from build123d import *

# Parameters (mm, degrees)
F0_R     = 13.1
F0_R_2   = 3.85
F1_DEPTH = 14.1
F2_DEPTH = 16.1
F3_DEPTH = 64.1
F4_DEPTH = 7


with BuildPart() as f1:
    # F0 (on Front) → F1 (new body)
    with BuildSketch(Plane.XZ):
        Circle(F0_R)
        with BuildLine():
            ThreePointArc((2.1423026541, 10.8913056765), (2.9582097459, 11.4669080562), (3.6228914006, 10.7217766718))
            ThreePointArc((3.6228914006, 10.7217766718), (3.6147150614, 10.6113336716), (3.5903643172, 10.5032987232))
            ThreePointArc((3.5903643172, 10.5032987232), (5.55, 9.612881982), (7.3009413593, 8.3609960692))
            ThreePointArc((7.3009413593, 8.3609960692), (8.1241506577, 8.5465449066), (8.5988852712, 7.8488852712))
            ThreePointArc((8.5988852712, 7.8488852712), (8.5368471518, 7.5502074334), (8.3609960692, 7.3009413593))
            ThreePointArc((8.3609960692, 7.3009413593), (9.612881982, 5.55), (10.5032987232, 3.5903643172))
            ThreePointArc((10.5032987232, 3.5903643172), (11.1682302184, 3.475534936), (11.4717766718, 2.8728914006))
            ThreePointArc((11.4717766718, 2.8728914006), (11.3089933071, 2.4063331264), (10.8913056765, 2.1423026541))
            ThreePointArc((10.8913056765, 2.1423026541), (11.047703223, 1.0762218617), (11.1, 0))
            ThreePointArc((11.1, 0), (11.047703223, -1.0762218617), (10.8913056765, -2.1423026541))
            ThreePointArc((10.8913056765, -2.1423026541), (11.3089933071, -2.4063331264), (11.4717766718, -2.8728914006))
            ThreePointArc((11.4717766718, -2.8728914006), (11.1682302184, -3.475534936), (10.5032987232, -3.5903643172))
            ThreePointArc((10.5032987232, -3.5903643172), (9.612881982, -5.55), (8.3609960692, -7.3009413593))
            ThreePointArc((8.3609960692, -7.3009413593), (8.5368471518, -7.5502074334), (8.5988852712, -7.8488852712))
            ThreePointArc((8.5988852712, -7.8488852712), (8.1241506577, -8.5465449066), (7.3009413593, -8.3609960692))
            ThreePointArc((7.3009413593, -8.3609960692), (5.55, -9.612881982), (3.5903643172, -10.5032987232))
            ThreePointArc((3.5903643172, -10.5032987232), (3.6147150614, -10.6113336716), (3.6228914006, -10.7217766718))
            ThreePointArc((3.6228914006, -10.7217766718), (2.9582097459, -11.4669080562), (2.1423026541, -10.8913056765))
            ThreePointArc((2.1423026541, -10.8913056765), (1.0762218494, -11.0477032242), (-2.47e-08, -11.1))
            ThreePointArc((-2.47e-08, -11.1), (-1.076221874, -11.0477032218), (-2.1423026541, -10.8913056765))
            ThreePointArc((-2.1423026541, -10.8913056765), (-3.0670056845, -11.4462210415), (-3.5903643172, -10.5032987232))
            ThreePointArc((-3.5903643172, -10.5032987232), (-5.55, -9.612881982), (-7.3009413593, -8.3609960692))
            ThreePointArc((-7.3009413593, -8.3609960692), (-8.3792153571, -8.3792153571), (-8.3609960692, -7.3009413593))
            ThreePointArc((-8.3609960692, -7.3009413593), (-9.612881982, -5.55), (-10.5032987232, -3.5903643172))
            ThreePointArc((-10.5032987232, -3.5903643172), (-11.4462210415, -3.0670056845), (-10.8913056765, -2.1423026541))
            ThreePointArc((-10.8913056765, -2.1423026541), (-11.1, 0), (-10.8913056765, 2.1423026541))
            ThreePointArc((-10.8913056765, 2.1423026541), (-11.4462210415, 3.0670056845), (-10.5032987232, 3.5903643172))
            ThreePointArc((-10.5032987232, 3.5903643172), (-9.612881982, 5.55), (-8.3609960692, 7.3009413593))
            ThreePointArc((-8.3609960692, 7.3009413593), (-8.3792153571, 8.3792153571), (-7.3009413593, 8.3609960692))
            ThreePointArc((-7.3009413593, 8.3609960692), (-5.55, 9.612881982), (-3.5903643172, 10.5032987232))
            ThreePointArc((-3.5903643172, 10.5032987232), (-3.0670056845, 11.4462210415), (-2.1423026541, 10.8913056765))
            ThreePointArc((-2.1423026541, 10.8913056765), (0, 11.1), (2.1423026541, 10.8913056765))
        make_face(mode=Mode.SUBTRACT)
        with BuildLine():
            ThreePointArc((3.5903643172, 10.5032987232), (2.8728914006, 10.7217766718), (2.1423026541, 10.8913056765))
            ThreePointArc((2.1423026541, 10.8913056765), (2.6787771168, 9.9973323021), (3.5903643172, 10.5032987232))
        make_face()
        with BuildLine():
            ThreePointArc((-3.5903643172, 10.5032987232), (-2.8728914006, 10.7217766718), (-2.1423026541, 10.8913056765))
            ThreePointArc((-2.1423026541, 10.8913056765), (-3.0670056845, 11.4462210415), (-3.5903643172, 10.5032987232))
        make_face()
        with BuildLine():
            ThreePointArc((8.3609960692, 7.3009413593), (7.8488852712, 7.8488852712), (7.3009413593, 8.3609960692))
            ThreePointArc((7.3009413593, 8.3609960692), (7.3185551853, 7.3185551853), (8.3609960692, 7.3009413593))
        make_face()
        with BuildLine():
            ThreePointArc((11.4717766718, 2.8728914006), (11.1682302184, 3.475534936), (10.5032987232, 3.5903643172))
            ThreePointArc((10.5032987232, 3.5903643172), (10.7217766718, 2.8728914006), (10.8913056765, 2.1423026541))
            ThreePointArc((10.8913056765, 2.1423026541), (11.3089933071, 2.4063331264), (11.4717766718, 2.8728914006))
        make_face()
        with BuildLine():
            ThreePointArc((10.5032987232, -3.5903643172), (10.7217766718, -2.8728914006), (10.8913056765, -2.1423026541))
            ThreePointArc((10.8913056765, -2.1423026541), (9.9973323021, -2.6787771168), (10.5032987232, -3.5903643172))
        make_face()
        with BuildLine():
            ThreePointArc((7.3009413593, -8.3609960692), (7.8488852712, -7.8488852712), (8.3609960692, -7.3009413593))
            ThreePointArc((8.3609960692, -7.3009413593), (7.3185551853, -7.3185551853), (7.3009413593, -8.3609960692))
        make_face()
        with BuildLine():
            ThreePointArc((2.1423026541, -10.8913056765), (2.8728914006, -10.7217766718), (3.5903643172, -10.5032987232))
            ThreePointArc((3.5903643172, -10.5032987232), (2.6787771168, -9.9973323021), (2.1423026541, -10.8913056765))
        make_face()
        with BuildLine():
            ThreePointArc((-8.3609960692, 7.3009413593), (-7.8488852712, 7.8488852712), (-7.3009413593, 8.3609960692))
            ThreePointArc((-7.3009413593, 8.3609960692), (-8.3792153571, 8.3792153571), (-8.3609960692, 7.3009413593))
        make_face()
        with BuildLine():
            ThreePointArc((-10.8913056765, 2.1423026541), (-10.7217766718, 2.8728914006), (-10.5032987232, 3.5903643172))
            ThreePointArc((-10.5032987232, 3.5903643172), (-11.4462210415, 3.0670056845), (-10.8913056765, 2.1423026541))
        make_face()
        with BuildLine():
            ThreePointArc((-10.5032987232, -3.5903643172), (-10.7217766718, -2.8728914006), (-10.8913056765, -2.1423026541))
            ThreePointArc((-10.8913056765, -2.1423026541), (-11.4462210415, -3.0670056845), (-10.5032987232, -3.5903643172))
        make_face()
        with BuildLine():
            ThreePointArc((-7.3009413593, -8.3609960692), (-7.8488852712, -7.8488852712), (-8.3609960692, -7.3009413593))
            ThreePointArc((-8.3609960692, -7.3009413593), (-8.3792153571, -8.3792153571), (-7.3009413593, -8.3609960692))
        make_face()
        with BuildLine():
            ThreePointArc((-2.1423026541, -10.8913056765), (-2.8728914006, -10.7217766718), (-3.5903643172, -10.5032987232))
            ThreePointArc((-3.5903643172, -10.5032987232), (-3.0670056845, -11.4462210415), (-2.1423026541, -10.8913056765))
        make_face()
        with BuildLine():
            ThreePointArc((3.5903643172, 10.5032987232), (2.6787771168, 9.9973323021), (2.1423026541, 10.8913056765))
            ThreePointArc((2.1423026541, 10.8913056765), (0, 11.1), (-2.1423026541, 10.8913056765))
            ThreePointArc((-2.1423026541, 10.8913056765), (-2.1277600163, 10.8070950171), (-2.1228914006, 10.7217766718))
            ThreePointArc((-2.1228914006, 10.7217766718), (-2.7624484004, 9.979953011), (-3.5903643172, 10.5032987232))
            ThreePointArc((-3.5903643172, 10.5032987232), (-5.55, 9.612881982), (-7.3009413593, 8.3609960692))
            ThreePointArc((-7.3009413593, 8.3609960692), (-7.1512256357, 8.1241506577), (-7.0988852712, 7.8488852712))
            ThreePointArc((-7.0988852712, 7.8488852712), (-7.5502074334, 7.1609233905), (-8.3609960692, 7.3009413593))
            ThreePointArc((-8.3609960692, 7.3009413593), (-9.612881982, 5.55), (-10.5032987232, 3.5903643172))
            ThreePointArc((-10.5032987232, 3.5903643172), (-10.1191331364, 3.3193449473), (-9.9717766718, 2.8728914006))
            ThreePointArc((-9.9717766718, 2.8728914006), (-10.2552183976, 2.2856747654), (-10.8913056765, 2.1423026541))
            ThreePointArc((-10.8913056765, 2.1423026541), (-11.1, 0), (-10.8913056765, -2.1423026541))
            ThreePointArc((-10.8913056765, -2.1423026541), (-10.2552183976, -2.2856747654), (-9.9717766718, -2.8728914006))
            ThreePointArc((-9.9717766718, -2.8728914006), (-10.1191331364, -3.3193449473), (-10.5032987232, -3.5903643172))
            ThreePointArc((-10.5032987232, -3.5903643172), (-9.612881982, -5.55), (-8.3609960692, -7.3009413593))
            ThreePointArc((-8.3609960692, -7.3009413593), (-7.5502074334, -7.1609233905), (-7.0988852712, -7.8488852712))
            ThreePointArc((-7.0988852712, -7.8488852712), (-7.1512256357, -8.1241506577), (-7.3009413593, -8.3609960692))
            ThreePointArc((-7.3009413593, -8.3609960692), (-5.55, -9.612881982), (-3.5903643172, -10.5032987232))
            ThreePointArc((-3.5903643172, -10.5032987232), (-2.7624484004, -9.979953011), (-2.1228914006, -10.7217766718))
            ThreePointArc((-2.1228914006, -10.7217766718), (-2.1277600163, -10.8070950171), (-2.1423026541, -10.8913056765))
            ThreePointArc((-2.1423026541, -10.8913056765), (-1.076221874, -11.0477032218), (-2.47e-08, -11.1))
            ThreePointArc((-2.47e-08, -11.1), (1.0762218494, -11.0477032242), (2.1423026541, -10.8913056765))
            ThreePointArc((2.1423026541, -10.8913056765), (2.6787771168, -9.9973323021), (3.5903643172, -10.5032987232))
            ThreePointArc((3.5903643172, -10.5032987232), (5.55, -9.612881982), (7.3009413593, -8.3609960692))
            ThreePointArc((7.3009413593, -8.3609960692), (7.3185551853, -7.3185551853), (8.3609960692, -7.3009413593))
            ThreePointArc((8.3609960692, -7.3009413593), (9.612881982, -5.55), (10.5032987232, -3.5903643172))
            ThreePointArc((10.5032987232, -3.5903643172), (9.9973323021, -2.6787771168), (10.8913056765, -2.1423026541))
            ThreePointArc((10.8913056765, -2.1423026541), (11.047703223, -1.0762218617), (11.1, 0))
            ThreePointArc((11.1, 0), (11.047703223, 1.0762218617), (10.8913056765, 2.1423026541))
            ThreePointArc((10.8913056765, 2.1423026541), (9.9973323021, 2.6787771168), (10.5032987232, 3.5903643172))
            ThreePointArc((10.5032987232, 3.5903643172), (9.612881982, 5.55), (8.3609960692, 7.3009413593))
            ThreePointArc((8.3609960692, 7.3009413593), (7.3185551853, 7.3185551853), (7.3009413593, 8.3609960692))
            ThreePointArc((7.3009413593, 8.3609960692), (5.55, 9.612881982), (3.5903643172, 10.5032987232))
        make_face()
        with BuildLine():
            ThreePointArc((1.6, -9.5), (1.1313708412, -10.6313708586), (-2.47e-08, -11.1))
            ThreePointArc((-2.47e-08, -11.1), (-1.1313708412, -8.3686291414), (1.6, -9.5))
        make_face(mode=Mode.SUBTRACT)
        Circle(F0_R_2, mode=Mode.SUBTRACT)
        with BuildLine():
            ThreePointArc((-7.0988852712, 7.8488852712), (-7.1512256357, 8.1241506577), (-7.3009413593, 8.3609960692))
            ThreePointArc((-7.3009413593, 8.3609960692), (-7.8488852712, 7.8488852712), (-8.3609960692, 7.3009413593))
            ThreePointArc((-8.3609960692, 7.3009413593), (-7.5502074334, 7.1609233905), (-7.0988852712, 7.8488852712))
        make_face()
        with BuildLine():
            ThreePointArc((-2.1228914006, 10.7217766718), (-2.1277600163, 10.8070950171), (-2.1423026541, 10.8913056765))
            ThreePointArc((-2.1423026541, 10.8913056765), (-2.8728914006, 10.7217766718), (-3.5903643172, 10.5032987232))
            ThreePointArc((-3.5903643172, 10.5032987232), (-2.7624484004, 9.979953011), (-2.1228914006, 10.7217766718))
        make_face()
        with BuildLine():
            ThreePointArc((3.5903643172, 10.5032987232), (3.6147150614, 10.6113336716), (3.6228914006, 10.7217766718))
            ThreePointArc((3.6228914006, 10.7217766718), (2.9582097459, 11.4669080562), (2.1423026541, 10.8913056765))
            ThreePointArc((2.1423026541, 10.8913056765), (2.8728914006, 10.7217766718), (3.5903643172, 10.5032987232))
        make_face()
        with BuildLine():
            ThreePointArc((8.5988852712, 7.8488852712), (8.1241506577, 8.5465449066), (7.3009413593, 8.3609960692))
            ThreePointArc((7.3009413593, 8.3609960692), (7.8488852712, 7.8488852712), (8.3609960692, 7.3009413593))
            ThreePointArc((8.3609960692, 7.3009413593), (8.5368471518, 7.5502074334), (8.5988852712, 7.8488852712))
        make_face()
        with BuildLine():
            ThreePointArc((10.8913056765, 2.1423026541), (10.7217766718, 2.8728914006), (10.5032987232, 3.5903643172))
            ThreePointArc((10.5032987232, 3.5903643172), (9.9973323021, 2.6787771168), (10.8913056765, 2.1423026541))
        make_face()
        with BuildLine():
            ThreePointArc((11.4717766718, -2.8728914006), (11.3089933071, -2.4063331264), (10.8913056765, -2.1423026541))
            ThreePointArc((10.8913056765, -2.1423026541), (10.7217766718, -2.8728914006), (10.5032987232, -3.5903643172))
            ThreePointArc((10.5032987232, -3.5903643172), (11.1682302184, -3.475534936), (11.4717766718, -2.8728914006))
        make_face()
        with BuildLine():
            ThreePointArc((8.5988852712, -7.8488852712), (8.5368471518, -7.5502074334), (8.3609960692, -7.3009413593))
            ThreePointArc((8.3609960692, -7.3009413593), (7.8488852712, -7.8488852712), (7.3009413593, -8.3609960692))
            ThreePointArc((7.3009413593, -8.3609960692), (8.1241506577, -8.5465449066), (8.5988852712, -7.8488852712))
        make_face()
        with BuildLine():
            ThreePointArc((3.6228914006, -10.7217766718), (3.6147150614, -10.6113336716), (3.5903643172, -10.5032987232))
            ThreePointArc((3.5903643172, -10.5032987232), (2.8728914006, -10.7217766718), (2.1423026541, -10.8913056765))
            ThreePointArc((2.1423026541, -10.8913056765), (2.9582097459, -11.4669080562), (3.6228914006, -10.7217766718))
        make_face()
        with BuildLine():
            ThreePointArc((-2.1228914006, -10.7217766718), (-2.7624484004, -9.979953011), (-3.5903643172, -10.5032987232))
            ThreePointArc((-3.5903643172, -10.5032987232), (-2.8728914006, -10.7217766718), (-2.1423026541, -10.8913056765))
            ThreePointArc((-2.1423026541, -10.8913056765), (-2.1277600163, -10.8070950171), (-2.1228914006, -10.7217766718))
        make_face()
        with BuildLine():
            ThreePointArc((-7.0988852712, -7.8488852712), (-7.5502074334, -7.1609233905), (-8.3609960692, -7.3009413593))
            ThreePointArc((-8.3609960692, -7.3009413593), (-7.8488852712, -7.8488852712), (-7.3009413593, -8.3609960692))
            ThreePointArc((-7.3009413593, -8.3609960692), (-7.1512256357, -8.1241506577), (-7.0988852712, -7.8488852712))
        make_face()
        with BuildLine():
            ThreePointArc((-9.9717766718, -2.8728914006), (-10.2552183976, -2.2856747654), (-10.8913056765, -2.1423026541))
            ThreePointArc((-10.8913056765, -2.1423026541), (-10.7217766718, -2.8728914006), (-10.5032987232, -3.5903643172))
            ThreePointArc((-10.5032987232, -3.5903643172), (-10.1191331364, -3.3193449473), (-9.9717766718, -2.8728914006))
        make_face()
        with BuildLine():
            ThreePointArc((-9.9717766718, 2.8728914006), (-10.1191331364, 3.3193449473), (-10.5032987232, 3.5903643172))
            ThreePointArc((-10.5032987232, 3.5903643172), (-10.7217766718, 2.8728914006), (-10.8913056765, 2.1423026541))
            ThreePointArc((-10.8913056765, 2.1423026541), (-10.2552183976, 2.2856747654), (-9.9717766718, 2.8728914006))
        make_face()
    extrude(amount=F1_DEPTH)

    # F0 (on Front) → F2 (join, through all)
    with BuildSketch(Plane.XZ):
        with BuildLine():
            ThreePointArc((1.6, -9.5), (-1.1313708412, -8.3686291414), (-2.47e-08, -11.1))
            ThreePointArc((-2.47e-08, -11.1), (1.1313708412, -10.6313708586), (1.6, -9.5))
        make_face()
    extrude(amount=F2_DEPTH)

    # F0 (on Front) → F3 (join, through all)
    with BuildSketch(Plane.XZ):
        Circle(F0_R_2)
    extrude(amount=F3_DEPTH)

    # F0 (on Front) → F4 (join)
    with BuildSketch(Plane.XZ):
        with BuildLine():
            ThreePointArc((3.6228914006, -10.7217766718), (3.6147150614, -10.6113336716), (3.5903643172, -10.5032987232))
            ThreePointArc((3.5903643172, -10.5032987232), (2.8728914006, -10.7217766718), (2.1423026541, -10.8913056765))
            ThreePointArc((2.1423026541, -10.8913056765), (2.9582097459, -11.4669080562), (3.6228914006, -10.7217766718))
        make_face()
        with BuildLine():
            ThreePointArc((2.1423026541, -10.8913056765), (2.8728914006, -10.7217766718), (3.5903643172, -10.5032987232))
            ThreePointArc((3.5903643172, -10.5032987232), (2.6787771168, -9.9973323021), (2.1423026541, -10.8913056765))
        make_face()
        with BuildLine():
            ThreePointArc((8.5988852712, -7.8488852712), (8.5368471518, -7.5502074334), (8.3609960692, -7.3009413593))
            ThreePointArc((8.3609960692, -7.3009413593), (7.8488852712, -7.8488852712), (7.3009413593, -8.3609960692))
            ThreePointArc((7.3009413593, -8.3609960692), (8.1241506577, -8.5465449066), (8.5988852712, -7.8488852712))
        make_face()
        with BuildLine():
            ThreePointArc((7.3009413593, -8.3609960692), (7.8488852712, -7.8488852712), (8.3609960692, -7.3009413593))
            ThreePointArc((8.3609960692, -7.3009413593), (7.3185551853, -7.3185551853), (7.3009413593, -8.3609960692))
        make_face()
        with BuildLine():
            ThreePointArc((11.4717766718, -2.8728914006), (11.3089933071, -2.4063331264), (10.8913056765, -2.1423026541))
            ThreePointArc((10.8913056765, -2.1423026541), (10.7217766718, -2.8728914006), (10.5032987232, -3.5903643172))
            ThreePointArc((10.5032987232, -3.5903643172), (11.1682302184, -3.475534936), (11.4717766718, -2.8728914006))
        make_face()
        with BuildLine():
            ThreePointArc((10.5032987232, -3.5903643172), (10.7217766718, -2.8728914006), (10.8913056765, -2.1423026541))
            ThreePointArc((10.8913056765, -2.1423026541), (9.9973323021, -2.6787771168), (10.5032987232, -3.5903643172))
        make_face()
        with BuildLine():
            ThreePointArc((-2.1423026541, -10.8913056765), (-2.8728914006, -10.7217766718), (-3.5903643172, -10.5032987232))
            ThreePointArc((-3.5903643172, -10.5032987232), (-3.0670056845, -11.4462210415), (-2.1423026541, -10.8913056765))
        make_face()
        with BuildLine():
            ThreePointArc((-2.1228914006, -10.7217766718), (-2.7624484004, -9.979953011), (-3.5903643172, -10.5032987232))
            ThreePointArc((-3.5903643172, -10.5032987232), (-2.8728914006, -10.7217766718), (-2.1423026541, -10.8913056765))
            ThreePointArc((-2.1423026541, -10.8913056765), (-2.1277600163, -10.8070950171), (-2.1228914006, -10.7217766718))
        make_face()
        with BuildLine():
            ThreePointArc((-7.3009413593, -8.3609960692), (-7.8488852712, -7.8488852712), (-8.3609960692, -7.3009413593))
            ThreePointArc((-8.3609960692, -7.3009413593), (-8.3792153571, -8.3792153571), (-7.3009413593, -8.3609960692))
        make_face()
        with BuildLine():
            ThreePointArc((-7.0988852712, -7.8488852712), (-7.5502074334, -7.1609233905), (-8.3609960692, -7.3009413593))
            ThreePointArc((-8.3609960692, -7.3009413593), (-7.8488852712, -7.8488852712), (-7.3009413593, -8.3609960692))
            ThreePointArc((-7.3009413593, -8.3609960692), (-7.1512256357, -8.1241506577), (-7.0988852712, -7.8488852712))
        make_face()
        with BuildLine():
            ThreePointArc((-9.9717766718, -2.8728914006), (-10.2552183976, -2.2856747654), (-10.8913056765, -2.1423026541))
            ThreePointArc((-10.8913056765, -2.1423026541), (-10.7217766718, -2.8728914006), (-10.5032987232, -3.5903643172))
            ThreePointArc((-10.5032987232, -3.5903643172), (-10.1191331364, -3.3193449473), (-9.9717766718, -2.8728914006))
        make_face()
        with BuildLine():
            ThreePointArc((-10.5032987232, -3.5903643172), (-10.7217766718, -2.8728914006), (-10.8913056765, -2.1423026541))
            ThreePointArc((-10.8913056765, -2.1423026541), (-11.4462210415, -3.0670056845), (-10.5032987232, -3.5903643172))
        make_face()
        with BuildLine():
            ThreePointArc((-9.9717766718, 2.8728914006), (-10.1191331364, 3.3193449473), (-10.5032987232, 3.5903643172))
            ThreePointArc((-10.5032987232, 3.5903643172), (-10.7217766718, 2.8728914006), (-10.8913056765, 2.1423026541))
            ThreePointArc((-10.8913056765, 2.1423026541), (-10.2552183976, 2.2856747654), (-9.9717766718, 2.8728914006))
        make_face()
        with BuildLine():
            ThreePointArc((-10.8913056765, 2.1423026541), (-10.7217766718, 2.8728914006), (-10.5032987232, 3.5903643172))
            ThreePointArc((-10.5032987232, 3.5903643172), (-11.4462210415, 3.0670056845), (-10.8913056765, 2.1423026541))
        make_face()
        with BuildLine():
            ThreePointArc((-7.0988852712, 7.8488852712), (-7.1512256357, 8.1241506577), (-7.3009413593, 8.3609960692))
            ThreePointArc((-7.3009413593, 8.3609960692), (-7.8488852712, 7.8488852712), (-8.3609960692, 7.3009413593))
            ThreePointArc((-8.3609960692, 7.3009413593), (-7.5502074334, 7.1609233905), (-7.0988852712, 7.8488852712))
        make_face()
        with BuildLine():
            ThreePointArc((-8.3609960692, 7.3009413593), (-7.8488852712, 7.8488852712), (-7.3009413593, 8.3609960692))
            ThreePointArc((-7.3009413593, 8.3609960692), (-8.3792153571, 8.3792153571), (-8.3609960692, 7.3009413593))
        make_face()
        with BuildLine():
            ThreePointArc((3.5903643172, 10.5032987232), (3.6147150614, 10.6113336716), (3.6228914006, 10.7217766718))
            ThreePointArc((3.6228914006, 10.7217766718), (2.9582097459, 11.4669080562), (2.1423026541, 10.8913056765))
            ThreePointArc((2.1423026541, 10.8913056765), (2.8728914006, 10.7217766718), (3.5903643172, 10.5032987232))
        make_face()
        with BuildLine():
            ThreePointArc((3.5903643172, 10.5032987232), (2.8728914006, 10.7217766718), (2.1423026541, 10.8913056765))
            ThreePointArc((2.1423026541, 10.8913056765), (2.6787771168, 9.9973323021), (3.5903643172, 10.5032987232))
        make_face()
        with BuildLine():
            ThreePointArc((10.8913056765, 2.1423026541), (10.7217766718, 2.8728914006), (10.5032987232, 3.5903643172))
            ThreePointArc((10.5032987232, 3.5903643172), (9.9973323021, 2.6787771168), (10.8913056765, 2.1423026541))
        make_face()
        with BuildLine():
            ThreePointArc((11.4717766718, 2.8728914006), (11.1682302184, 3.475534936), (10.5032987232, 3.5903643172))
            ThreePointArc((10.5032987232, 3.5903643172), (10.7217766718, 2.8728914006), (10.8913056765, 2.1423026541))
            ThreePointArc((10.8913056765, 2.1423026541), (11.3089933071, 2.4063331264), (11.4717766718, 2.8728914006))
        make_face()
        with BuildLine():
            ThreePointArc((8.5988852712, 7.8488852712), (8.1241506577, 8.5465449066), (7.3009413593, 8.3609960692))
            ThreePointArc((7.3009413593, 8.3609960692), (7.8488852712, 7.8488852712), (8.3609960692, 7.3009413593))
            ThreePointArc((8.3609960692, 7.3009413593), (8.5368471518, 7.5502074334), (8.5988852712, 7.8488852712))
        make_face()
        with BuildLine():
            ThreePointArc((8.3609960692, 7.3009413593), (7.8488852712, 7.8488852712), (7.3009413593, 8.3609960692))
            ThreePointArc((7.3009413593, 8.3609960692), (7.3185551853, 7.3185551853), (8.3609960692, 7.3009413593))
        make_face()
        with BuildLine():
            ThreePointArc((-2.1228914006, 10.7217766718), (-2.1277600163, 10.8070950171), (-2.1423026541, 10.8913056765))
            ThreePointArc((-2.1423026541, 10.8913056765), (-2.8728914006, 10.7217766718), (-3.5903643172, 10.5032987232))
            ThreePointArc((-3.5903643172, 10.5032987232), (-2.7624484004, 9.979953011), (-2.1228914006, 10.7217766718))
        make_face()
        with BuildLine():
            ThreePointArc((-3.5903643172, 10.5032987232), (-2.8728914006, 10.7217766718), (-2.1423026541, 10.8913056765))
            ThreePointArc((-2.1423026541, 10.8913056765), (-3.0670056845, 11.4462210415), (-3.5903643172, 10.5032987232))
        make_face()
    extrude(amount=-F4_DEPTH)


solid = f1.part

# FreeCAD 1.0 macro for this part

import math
import FreeCAD as App
import Part
import Sketcher

V = App.Vector

doc = App.newDocument("Part")
body = doc.addObject("PartDesign::Body", "Body")

# Sketch on XZ plane
sketch1 = doc.addObject("Sketcher::SketchObject", "Sketch")
body.addObject(sketch1)
sketch1.AttachmentSupport = (doc.XZ_Plane, [""])
sketch1.MapMode = "FlatFace"
sketch1.addGeometry(Part.Circle(V(0, 0, 0), V(0, 0, 1), 13.1), False)
sketch1.addGeometry(Part.ArcOfCircle(Part.Circle(V(0, -9.5, 0), V(0, 0, 1), 1.6), math.radians(0), math.radians(270)), False)
sketch1.addGeometry(Part.ArcOfCircle(Part.Circle(V(0, -9.5, 0), V(0, 0, 1), 1.6), math.radians(-90), math.radians(0)), False)
sketch1.addGeometry(Part.Circle(V(0, 0, 0), V(0, 0, 1), 3.9), False)
sketch1.addConstraint(Sketcher.Constraint("Tangent", 1, 1, 2, 2))
sketch1.addConstraint(Sketcher.Constraint("Coincident", 2, 1, 1, 2))
sketch1.addConstraint(Sketcher.Constraint("Coincident", 0, 3, -1, 1))
sketch1.addConstraint(Sketcher.Constraint("Coincident", 3, 3, -1, 1))
sketch1.addConstraint(Sketcher.Constraint("PointOnObject", 1, 3, -2))
sketch1.addConstraint(Sketcher.Constraint("PointOnObject", 2, 1, -2))
sketch1.addConstraint(Sketcher.Constraint("Horizontal", 2, 3, 1, 1))
sketch1.addConstraint(Sketcher.Constraint("Diameter", 0, 26.2))
sketch1.addConstraint(Sketcher.Constraint("Diameter", 3, 7.7))
sketch1.addConstraint(Sketcher.Constraint("Radius", 1, 1.6))
sketch1.addConstraint(Sketcher.Constraint("DistanceY", 1, 3, -1, 1, 9.5))
pad1 = doc.addObject("PartDesign::Pad", "Pad")
body.addObject(pad1)
pad1.Profile = sketch1
pad1.Length = 14.1

# Sketch on XZ plane
sketch2 = doc.addObject("Sketcher::SketchObject", "Sketch001")
body.addObject(sketch2)
sketch2.AttachmentSupport = (doc.XZ_Plane, [""])
sketch2.MapMode = "FlatFace"
sketch2.addGeometry(Part.ArcOfCircle(Part.Circle(V(0, -9.5, 0), V(0, 0, 1), 1.6), math.radians(0), math.radians(270)), False)
sketch2.addGeometry(Part.ArcOfCircle(Part.Circle(V(0, -9.5, 0), V(0, 0, 1), 1.6), math.radians(-90), math.radians(0)), False)
sketch2.addConstraint(Sketcher.Constraint("Tangent", 0, 1, 1, 2))
sketch2.addConstraint(Sketcher.Constraint("Coincident", 1, 1, 0, 2))
sketch2.addConstraint(Sketcher.Constraint("PointOnObject", 0, 3, -2))
sketch2.addConstraint(Sketcher.Constraint("PointOnObject", 1, 1, -2))
sketch2.addConstraint(Sketcher.Constraint("Horizontal", 1, 3, 0, 1))
sketch2.addConstraint(Sketcher.Constraint("Radius", 0, 1.6))
sketch2.addConstraint(Sketcher.Constraint("DistanceY", 0, 3, -1, 1, 9.5))
pad2 = doc.addObject("PartDesign::Pad", "Pad001")
body.addObject(pad2)
pad2.Profile = sketch2
pad2.Length = 16.1

# Sketch on XZ plane
sketch3 = doc.addObject("Sketcher::SketchObject", "Sketch002")
body.addObject(sketch3)
sketch3.AttachmentSupport = (doc.XZ_Plane, [""])
sketch3.MapMode = "FlatFace"
sketch3.addGeometry(Part.Circle(V(0, 0, 0), V(0, 0, 1), 3.9), False)
sketch3.addConstraint(Sketcher.Constraint("Coincident", 0, 3, -1, 1))
sketch3.addConstraint(Sketcher.Constraint("Diameter", 0, 7.7))
pad3 = doc.addObject("PartDesign::Pad", "Pad002")
body.addObject(pad3)
pad3.Profile = sketch3
pad3.Length = 64.1

# Sketch on XZ plane
sketch4 = doc.addObject("Sketcher::SketchObject", "Sketch003")
body.addObject(sketch4)
sketch4.AttachmentSupport = (doc.XZ_Plane, [""])
sketch4.MapMode = "FlatFace"
sketch4.addGeometry(Part.ArcOfCircle(Part.Circle(V(2.87, -10.72, 0), V(0, 0, 1), 0.75), math.radians(0), math.radians(16.94)), False)
sketch4.addGeometry(Part.ArcOfCircle(Part.Circle(V(2.87, -10.72, 0), V(0, 0, 1), 0.75), math.radians(17), math.radians(193)), False)
sketch4.addGeometry(Part.ArcOfCircle(Part.Circle(V(2.87, -10.72, 0), V(0, 0, 1), 0.75), math.radians(-167), math.radians(0)), False)
sketch4.addGeometry(Part.ArcOfCircle(Part.Circle(V(7.85, -7.85, 0), V(0, 0, 1), 0.75), math.radians(0), math.radians(47)), False)
sketch4.addGeometry(Part.ArcOfCircle(Part.Circle(V(7.85, -7.85, 0), V(0, 0, 1), 0.75), math.radians(47), math.radians(223)), False)
sketch4.addGeometry(Part.ArcOfCircle(Part.Circle(V(7.85, -7.85, 0), V(0, 0, 1), 0.75), math.radians(-137), math.radians(0)), False)
sketch4.addGeometry(Part.ArcOfCircle(Part.Circle(V(10.72, -2.87, 0), V(0, 0, 1), 0.75), math.radians(0), math.radians(77)), False)
sketch4.addGeometry(Part.ArcOfCircle(Part.Circle(V(10.72, -2.87, 0), V(0, 0, 1), 0.75), math.radians(77), math.radians(253)), False)
sketch4.addGeometry(Part.ArcOfCircle(Part.Circle(V(10.72, -2.87, 0), V(0, 0, 1), 0.75), math.radians(-107), math.radians(0)), False)
sketch4.addGeometry(Part.ArcOfCircle(Part.Circle(V(-2.87, -10.72, 0), V(0, 0, 1), 0.75), math.radians(163), math.radians(347)), False)
sketch4.addGeometry(Part.ArcOfCircle(Part.Circle(V(-2.87, -10.72, 0), V(0, 0, 1), 0.75), math.radians(-13.06), math.radians(0)), False)
sketch4.addGeometry(Part.ArcOfCircle(Part.Circle(V(-2.87, -10.72, 0), V(0, 0, 1), 0.75), math.radians(0), math.radians(163)), False)
sketch4.addGeometry(Part.ArcOfCircle(Part.Circle(V(-7.85, -7.85, 0), V(0, 0, 1), 0.75), math.radians(133), math.radians(317)), False)
sketch4.addGeometry(Part.ArcOfCircle(Part.Circle(V(-7.85, -7.85, 0), V(0, 0, 1), 0.75), math.radians(-43), math.radians(0)), False)
sketch4.addGeometry(Part.ArcOfCircle(Part.Circle(V(-7.85, -7.85, 0), V(0, 0, 1), 0.75), math.radians(0), math.radians(133)), False)
sketch4.addGeometry(Part.ArcOfCircle(Part.Circle(V(-10.72, -2.87, 0), V(0, 0, 1), 0.75), math.radians(0), math.radians(103)), False)
sketch4.addGeometry(Part.ArcOfCircle(Part.Circle(V(-10.72, -2.87, 0), V(0, 0, 1), 0.75), math.radians(103), math.radians(287)), False)
sketch4.addGeometry(Part.ArcOfCircle(Part.Circle(V(-10.72, -2.87, 0), V(0, 0, 1), 0.75), math.radians(-73), math.radians(0)), False)
sketch4.addGeometry(Part.ArcOfCircle(Part.Circle(V(-10.72, 2.87, 0), V(0, 0, 1), 0.75), math.radians(0), math.radians(73)), False)
sketch4.addGeometry(Part.ArcOfCircle(Part.Circle(V(-10.72, 2.87, 0), V(0, 0, 1), 0.75), math.radians(73), math.radians(257)), False)
sketch4.addGeometry(Part.ArcOfCircle(Part.Circle(V(-10.72, 2.87, 0), V(0, 0, 1), 0.75), math.radians(-103), math.radians(0)), False)
sketch4.addGeometry(Part.ArcOfCircle(Part.Circle(V(-7.85, 7.85, 0), V(0, 0, 1), 0.75), math.radians(0), math.radians(43)), False)
sketch4.addGeometry(Part.ArcOfCircle(Part.Circle(V(-7.85, 7.85, 0), V(0, 0, 1), 0.75), math.radians(43), math.radians(227)), False)
sketch4.addGeometry(Part.ArcOfCircle(Part.Circle(V(-7.85, 7.85, 0), V(0, 0, 1), 0.75), math.radians(-133), math.radians(0)), False)
sketch4.addGeometry(Part.ArcOfCircle(Part.Circle(V(2.87, 10.72, 0), V(0, 0, 1), 0.75), math.radians(-16.94), math.radians(0)), False)
sketch4.addGeometry(Part.ArcOfCircle(Part.Circle(V(2.87, 10.72, 0), V(0, 0, 1), 0.75), math.radians(0), math.radians(167)), False)
sketch4.addGeometry(Part.ArcOfCircle(Part.Circle(V(2.87, 10.72, 0), V(0, 0, 1), 0.75), math.radians(167), math.radians(343)), False)
sketch4.addGeometry(Part.ArcOfCircle(Part.Circle(V(10.72, 2.87, 0), V(0, 0, 1), 0.75), math.radians(107), math.radians(283)), False)
sketch4.addGeometry(Part.ArcOfCircle(Part.Circle(V(10.72, 2.87, 0), V(0, 0, 1), 0.75), math.radians(-77), math.radians(0)), False)
sketch4.addGeometry(Part.ArcOfCircle(Part.Circle(V(10.72, 2.87, 0), V(0, 0, 1), 0.75), math.radians(0), math.radians(107)), False)
sketch4.addGeometry(Part.ArcOfCircle(Part.Circle(V(7.85, 7.85, 0), V(0, 0, 1), 0.75), math.radians(0), math.radians(137)), False)
sketch4.addGeometry(Part.ArcOfCircle(Part.Circle(V(7.85, 7.85, 0), V(0, 0, 1), 0.75), math.radians(137), math.radians(313)), False)
sketch4.addGeometry(Part.ArcOfCircle(Part.Circle(V(7.85, 7.85, 0), V(0, 0, 1), 0.75), math.radians(-47), math.radians(0)), False)
sketch4.addGeometry(Part.ArcOfCircle(Part.Circle(V(-2.87, 10.72, 0), V(0, 0, 1), 0.75), math.radians(0), math.radians(13.06)), False)
sketch4.addGeometry(Part.ArcOfCircle(Part.Circle(V(-2.87, 10.72, 0), V(0, 0, 1), 0.75), math.radians(13), math.radians(197)), False)
sketch4.addGeometry(Part.ArcOfCircle(Part.Circle(V(-2.87, 10.72, 0), V(0, 0, 1), 0.75), math.radians(-163), math.radians(0)), False)
sketch4.addConstraint(Sketcher.Constraint("Tangent", 0, 2, 1, 1))
sketch4.addConstraint(Sketcher.Constraint("Tangent", 1, 2, 2, 1))
sketch4.addConstraint(Sketcher.Constraint("Tangent", 2, 2, 0, 1))
sketch4.addConstraint(Sketcher.Constraint("Tangent", 3, 2, 4, 1))
sketch4.addConstraint(Sketcher.Constraint("Tangent", 4, 2, 5, 1))
sketch4.addConstraint(Sketcher.Constraint("Tangent", 5, 2, 3, 1))
sketch4.addConstraint(Sketcher.Constraint("Tangent", 6, 2, 7, 1))
sketch4.addConstraint(Sketcher.Constraint("Tangent", 7, 2, 8, 1))
sketch4.addConstraint(Sketcher.Constraint("Tangent", 8, 2, 6, 1))
sketch4.addConstraint(Sketcher.Constraint("Tangent", 9, 2, 10, 1))
sketch4.addConstraint(Sketcher.Constraint("Tangent", 10, 2, 11, 1))
sketch4.addConstraint(Sketcher.Constraint("Tangent", 11, 2, 9, 1))
sketch4.addConstraint(Sketcher.Constraint("Tangent", 12, 2, 13, 1))
sketch4.addConstraint(Sketcher.Constraint("Tangent", 13, 2, 14, 1))
sketch4.addConstraint(Sketcher.Constraint("Tangent", 14, 2, 12, 1))
sketch4.addConstraint(Sketcher.Constraint("Tangent", 15, 2, 16, 1))
sketch4.addConstraint(Sketcher.Constraint("Tangent", 16, 2, 17, 1))
sketch4.addConstraint(Sketcher.Constraint("Tangent", 17, 2, 15, 1))
sketch4.addConstraint(Sketcher.Constraint("Tangent", 18, 2, 19, 1))
sketch4.addConstraint(Sketcher.Constraint("Tangent", 19, 2, 20, 1))
sketch4.addConstraint(Sketcher.Constraint("Tangent", 20, 2, 18, 1))
sketch4.addConstraint(Sketcher.Constraint("Tangent", 21, 2, 22, 1))
sketch4.addConstraint(Sketcher.Constraint("Tangent", 22, 2, 23, 1))
sketch4.addConstraint(Sketcher.Constraint("Tangent", 23, 2, 21, 1))
sketch4.addConstraint(Sketcher.Constraint("Tangent", 24, 2, 25, 1))
sketch4.addConstraint(Sketcher.Constraint("Tangent", 25, 2, 26, 1))
sketch4.addConstraint(Sketcher.Constraint("Tangent", 26, 2, 24, 1))
sketch4.addConstraint(Sketcher.Constraint("Tangent", 27, 2, 28, 1))
sketch4.addConstraint(Sketcher.Constraint("Tangent", 28, 2, 29, 1))
sketch4.addConstraint(Sketcher.Constraint("Tangent", 29, 2, 27, 1))
sketch4.addConstraint(Sketcher.Constraint("Tangent", 30, 2, 31, 1))
sketch4.addConstraint(Sketcher.Constraint("Tangent", 31, 2, 32, 1))
sketch4.addConstraint(Sketcher.Constraint("Tangent", 32, 2, 30, 1))
sketch4.addConstraint(Sketcher.Constraint("Tangent", 33, 2, 34, 1))
sketch4.addConstraint(Sketcher.Constraint("Tangent", 34, 2, 35, 1))
sketch4.addConstraint(Sketcher.Constraint("Tangent", 35, 2, 33, 1))
sketch4.addConstraint(Sketcher.Constraint("Equal", 2, 3))
sketch4.addConstraint(Sketcher.Constraint("Equal", 5, 6))
sketch4.addConstraint(Sketcher.Constraint("Equal", 8, 9))
sketch4.addConstraint(Sketcher.Constraint("Equal", 11, 12))
sketch4.addConstraint(Sketcher.Constraint("Equal", 14, 15))
sketch4.addConstraint(Sketcher.Constraint("Equal", 17, 18))
sketch4.addConstraint(Sketcher.Constraint("Equal", 20, 21))
sketch4.addConstraint(Sketcher.Constraint("Equal", 23, 24))
sketch4.addConstraint(Sketcher.Constraint("Equal", 26, 27))
sketch4.addConstraint(Sketcher.Constraint("Equal", 29, 30))
sketch4.addConstraint(Sketcher.Constraint("Equal", 32, 33))
sketch4.addConstraint(Sketcher.Constraint("Symmetric", 6, 3, 18, 3, -1, 1))
sketch4.addConstraint(Sketcher.Constraint("Symmetric", 3, 3, 21, 3, -1, 1))
sketch4.addConstraint(Sketcher.Constraint("Symmetric", 9, 3, 24, 3, -1, 1))
sketch4.addConstraint(Sketcher.Constraint("Symmetric", 15, 3, 27, 3, -1, 1))
sketch4.addConstraint(Sketcher.Constraint("Symmetric", 12, 3, 30, 3, -1, 1))
sketch4.addConstraint(Sketcher.Constraint("Symmetric", 0, 3, 33, 3, -1, 1))
sketch4.addConstraint(Sketcher.Constraint("Symmetric", 0, 3, 9, 3, -2))
sketch4.addConstraint(Sketcher.Constraint("Symmetric", 3, 3, 12, 3, -2))
sketch4.addConstraint(Sketcher.Constraint("Symmetric", 6, 3, 15, 3, -2))
sketch4.addConstraint(Sketcher.Constraint("Horizontal", 11, 3, 2, 2))
sketch4.addConstraint(Sketcher.Constraint("Horizontal", 14, 3, 5, 2))
sketch4.addConstraint(Sketcher.Constraint("Horizontal", 17, 3, 8, 2))
sketch4.addConstraint(Sketcher.Constraint("Horizontal", 1, 2, 9, 2))
sketch4.addConstraint(Sketcher.Constraint("Horizontal", 2, 2, 10, 2))
sketch4.addConstraint(Sketcher.Constraint("Horizontal", 0, 2, 11, 2))
sketch4.addConstraint(Sketcher.Constraint("Horizontal", 4, 2, 12, 2))
sketch4.addConstraint(Sketcher.Constraint("Horizontal", 5, 2, 13, 2))
sketch4.addConstraint(Sketcher.Constraint("Horizontal", 3, 2, 14, 2))
sketch4.addConstraint(Sketcher.Constraint("Horizontal", 6, 2, 15, 2))
sketch4.addConstraint(Sketcher.Constraint("Horizontal", 7, 2, 16, 2))
sketch4.addConstraint(Sketcher.Constraint("Horizontal", 8, 2, 17, 2))
sketch4.addConstraint(Sketcher.Constraint("Horizontal", 29, 3, 20, 2))
sketch4.addConstraint(Sketcher.Constraint("Horizontal", 32, 3, 23, 2))
sketch4.addConstraint(Sketcher.Constraint("Horizontal", 35, 3, 24, 2))
sketch4.addConstraint(Sketcher.Constraint("Horizontal", 19, 2, 27, 2))
sketch4.addConstraint(Sketcher.Constraint("Horizontal", 20, 2, 28, 2))
sketch4.addConstraint(Sketcher.Constraint("Horizontal", 18, 2, 29, 2))
sketch4.addConstraint(Sketcher.Constraint("Horizontal", 21, 2, 30, 2))
sketch4.addConstraint(Sketcher.Constraint("Horizontal", 22, 2, 31, 2))
sketch4.addConstraint(Sketcher.Constraint("Horizontal", 23, 2, 32, 2))
sketch4.addConstraint(Sketcher.Constraint("Horizontal", 25, 2, 33, 2))
sketch4.addConstraint(Sketcher.Constraint("Horizontal", 26, 2, 34, 2))
sketch4.addConstraint(Sketcher.Constraint("Horizontal", 24, 2, 35, 2))
sketch4.addConstraint(Sketcher.Constraint("Vertical", 16, 2, 18, 2))
sketch4.addConstraint(Sketcher.Constraint("Vertical", 15, 2, 19, 2))
sketch4.addConstraint(Sketcher.Constraint("Vertical", 12, 2, 21, 2))
sketch4.addConstraint(Sketcher.Constraint("Vertical", 14, 2, 22, 2))
sketch4.addConstraint(Sketcher.Constraint("Vertical", 1, 2, 25, 2))
sketch4.addConstraint(Sketcher.Constraint("Vertical", 0, 2, 26, 2))
sketch4.addConstraint(Sketcher.Constraint("Radius", 0, 0.75))
sketch4.addConstraint(Sketcher.Constraint("DistanceY", 0, 2, -1, 1, 10.503299))
sketch4.addConstraint(Sketcher.Constraint("DistanceX", -1, 1, 7, 2, 10.503299))
sketch4.addConstraint(Sketcher.Constraint("DistanceX", -1, 1, 0, 3, 2.872891))
sketch4.addConstraint(Sketcher.Constraint("DistanceY", 6, 3, -1, 1, 2.872891))
sketch4.addConstraint(Sketcher.Constraint("DistanceY", 3, 2, -1, 1, 7.300941))
sketch4.addConstraint(Sketcher.Constraint("DistanceX", -1, 1, 4, 2, 7.300941))
sketch4.addConstraint(Sketcher.Constraint("DistanceY", 0, 3, -1, 1, 10.721777))
sketch4.addConstraint(Sketcher.Constraint("DistanceX", -1, 1, 3, 3, 7.848885))
sketch4.addConstraint(Sketcher.Constraint("DistanceY", 3, 3, -1, 1, 7.848885))
sketch4.addConstraint(Sketcher.Constraint("DistanceX", -1, 1, 6, 3, 10.721777))
sketch4.addConstraint(Sketcher.Constraint("DistanceX", -1, 1, 1, 2, 2.142303))
sketch4.addConstraint(Sketcher.Constraint("DistanceX", -1, 1, 6, 2, 10.891306))
pad4 = doc.addObject("PartDesign::Pad", "Pad003")
body.addObject(pad4)
pad4.Profile = sketch4
pad4.Length = 7
pad4.Reversed = True

doc.recompute()
